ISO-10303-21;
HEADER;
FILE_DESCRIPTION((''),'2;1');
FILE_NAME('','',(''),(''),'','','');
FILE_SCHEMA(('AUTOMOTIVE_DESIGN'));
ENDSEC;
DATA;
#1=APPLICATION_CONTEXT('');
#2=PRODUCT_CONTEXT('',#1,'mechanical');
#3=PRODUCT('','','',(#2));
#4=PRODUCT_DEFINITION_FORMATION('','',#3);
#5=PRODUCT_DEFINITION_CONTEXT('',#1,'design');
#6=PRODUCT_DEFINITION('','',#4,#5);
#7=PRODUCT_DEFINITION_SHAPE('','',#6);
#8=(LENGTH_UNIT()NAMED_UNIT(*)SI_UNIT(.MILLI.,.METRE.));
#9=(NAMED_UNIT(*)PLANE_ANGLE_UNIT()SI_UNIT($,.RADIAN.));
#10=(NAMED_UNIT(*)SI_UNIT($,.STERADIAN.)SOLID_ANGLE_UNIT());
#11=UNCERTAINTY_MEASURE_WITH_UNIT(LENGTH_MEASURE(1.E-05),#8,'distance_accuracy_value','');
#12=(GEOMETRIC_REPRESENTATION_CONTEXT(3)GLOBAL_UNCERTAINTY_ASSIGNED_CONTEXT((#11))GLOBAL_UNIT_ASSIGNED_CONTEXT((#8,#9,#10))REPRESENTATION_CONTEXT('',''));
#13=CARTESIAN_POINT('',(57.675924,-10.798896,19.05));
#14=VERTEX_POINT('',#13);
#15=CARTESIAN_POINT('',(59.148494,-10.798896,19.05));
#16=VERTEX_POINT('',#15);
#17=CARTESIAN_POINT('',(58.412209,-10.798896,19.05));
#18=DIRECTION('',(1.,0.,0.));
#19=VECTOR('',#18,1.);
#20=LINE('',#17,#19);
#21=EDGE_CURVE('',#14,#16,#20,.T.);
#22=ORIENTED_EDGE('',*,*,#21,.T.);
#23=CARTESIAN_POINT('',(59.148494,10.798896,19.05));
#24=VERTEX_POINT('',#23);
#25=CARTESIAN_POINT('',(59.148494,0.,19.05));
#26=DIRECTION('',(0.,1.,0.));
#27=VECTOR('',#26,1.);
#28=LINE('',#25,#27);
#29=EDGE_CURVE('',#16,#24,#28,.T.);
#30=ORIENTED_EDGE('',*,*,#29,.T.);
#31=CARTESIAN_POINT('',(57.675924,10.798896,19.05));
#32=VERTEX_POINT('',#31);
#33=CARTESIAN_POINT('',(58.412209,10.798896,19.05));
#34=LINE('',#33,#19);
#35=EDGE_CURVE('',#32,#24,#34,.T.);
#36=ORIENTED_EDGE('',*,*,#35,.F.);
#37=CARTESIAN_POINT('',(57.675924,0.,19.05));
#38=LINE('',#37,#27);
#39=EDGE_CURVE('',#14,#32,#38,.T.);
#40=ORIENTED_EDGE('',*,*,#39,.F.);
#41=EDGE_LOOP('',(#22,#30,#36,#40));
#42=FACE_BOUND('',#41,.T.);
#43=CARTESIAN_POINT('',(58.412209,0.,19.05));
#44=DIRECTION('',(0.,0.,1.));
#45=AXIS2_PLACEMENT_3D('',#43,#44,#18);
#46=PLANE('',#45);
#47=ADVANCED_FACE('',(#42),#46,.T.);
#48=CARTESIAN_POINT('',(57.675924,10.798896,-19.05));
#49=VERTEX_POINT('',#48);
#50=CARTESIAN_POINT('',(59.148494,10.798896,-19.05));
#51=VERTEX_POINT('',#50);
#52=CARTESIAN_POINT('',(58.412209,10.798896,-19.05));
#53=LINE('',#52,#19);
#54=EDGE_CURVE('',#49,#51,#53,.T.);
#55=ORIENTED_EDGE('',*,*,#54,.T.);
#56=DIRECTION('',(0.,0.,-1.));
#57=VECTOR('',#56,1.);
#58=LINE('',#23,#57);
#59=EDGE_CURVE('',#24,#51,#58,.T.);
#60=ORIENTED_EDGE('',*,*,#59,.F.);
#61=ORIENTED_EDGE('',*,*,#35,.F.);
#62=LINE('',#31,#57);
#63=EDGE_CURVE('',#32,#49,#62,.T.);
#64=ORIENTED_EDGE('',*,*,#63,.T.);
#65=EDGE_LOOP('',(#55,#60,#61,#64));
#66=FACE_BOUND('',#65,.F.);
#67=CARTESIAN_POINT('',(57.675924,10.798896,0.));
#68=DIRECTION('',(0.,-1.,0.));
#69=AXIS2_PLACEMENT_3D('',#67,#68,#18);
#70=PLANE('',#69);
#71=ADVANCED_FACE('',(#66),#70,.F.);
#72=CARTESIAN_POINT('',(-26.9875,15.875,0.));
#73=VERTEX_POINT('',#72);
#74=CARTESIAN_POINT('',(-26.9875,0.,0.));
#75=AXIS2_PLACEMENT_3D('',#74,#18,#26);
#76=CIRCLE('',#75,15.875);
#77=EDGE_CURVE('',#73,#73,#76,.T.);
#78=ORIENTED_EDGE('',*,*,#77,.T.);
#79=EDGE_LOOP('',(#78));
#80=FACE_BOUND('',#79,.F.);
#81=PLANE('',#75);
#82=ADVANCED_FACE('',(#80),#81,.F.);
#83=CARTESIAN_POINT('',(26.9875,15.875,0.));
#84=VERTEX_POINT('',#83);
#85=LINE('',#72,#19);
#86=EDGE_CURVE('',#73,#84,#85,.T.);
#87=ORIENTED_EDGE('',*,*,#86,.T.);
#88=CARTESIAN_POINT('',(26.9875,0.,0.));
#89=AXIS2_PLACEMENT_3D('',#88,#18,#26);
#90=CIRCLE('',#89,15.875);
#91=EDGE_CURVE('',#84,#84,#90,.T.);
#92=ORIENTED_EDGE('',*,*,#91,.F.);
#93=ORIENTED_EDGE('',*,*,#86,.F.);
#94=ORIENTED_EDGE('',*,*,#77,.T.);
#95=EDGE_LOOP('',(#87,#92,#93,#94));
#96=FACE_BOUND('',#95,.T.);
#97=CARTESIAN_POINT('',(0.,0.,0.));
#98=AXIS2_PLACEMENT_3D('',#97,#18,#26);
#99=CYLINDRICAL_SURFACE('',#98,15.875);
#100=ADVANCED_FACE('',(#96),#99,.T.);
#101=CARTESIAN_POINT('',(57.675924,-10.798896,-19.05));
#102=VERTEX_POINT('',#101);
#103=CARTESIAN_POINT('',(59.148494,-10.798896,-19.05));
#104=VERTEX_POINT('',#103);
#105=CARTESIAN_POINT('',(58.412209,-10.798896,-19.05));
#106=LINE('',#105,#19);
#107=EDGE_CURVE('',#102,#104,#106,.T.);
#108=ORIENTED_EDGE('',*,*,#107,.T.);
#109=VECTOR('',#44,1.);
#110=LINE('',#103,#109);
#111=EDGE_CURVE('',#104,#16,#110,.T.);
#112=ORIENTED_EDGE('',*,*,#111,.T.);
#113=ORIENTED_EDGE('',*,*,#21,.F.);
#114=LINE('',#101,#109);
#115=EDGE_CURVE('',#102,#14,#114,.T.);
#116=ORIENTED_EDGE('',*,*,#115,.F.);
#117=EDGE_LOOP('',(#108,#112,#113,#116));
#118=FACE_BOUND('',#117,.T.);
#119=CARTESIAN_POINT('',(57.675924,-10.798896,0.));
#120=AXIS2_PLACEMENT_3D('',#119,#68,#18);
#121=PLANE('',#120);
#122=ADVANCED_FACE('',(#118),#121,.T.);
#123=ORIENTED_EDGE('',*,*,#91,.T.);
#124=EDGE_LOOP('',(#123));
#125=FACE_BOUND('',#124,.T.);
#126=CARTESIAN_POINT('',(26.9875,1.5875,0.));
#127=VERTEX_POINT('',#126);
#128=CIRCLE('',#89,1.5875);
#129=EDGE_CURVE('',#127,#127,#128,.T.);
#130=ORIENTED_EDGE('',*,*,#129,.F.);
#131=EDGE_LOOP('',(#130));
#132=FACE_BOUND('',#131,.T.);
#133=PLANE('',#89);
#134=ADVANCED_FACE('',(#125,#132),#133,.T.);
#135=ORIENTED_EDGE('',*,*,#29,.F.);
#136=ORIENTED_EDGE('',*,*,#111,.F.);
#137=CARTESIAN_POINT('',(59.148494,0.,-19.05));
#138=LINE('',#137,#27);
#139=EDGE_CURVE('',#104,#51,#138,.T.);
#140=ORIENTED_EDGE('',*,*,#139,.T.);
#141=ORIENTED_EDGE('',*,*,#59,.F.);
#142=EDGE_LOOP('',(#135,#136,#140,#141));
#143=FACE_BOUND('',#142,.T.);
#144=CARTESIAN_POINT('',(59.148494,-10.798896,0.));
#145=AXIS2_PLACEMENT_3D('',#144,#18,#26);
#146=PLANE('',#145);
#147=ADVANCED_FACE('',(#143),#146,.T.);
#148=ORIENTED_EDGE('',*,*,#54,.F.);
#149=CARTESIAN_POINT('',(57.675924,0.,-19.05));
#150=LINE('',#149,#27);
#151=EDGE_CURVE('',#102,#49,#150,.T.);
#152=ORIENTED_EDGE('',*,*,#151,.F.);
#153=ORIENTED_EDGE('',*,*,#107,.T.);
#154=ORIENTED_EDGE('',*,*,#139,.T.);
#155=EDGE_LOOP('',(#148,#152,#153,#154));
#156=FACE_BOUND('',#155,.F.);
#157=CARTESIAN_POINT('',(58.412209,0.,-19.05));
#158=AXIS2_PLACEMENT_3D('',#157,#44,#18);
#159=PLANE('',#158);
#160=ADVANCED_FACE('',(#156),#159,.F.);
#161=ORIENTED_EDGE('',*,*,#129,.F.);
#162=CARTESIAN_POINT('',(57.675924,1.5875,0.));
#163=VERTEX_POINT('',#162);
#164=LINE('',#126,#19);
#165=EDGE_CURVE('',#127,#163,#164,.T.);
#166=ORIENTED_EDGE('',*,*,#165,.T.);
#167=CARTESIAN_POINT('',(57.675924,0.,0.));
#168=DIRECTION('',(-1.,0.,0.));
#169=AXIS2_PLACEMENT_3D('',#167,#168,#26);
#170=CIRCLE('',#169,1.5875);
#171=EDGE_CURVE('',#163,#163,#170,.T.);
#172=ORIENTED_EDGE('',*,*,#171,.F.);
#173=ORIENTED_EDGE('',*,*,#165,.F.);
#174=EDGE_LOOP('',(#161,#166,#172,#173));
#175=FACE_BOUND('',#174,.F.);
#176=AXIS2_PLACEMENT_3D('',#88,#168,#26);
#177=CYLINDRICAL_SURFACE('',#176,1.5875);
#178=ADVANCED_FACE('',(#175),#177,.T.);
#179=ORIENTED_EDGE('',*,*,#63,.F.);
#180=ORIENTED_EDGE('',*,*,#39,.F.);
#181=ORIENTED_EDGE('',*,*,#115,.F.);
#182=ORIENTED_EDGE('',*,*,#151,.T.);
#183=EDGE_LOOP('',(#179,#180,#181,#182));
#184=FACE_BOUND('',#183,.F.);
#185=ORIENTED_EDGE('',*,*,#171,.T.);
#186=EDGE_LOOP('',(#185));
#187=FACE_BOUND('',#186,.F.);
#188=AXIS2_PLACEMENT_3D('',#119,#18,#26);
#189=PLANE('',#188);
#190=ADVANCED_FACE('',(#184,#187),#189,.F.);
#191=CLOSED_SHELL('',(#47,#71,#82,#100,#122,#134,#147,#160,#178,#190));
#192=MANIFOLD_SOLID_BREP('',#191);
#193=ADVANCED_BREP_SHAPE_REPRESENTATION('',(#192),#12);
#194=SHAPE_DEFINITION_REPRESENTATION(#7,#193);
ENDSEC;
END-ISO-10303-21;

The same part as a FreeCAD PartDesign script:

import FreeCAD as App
import Part
import Sketcher
from FreeCAD import Vector
Q = App.Units.Quantity

doc = App.newDocument("Part")
body = doc.addObject("PartDesign::Body", "Body")

# Sketch on YZ plane
sketch1 = body.newObject("Sketcher::SketchObject", "Sketch")
sketch1.AttachmentSupport = (doc.getObject("YZ_Plane"), [""])
sketch1.MapMode = "FlatFace"
sketch1.addGeometry(Part.Circle(Vector(0, 0, 0), Vector(0, 0, 1), 16), False)
sketch1.addConstraint(Sketcher.Constraint("Coincident", 0, 3, -1, 1))
sketch1.addConstraint(Sketcher.Constraint("Diameter", 0, Q("1.25 in")))
pad1 = body.newObject("PartDesign::Pad", "Pad")
pad1.Profile = sketch1
pad1.Length = Q("2.125 in")
pad1.Midplane = True

# Sketch on YZ plane
sketch2 = body.newObject("Sketcher::SketchObject", "Sketch001")
sketch2.AttachmentSupport = (doc.getObject("YZ_Plane"), [""])
sketch2.MapMode = "FlatFace"
sketch2.AttachmentOffset = App.Placement(Vector(0, 0, 1.0625 * 25.4), App.Rotation())
sketch2.addGeometry(Part.Circle(Vector(0, 0, 0), Vector(0, 0, 1), 1.6), False)
sketch2.addConstraint(Sketcher.Constraint("Coincident", 0, 3, -1, 1))
sketch2.addConstraint(Sketcher.Constraint("Diameter", 0, Q("0.125 in")))
pad2 = body.newObject("PartDesign::Pad", "Pad001")
pad2.Profile = sketch2
pad2.Length = Q("1.25 in")

# Sketch on XY plane
sketch3 = body.newObject("Sketcher::SketchObject", "Sketch002")
sketch3.AttachmentSupport = (doc.getObject("XY_Plane"), [""])
sketch3.MapMode = "FlatFace"
sketch3.addGeometry(Part.LineSegment(Vector(57.7, 10.8, 0), Vector(57.7, -10.8, 0)), False)
sketch3.addGeometry(Part.LineSegment(Vector(57.7, -10.8, 0), Vector(59.1, -10.8, 0)), False)
sketch3.addGeometry(Part.LineSegment(Vector(59.1, -10.8, 0), Vector(59.1, 10.8, 0)), False)
sketch3.addGeometry(Part.LineSegment(Vector(59.1, 10.8, 0), Vector(57.7, 10.8, 0)), False)
sketch3.addConstraint(Sketcher.Constraint("Coincident", 0, 2, 1, 1))
sketch3.addConstraint(Sketcher.Constraint("Coincident", 1, 2, 2, 1))
sketch3.addConstraint(Sketcher.Constraint("Coincident", 2, 2, 3, 1))
sketch3.addConstraint(Sketcher.Constraint("Coincident", 3, 2, 0, 1))
sketch3.addConstraint(Sketcher.Constraint("Vertical", 0))
sketch3.addConstraint(Sketcher.Constraint("Horizontal", 1))
sketch3.addConstraint(Sketcher.Constraint("Vertical", 2))
sketch3.addConstraint(Sketcher.Constraint("Horizontal", 3))
sketch3.addConstraint(Sketcher.Constraint("DistanceX", 1, 1, 1, 2, Q("1.47257 mm")))
sketch3.addConstraint(Sketcher.Constraint("DistanceY", 0, 2, 0, 1, Q("21.597792 mm")))
sketch3.addConstraint(Sketcher.Constraint("DistanceX", -1, 1, 0, 2, Q("57.675924 mm")))
sketch3.addConstraint(Sketcher.Constraint("DistanceY", 0, 2, -1, 1, Q("10.798896 mm")))
pad3 = body.newObject("PartDesign::Pad", "Pad002")
pad3.Profile = sketch3
pad3.Length = Q("1.5 in")
pad3.Midplane = True

doc.recompute()
